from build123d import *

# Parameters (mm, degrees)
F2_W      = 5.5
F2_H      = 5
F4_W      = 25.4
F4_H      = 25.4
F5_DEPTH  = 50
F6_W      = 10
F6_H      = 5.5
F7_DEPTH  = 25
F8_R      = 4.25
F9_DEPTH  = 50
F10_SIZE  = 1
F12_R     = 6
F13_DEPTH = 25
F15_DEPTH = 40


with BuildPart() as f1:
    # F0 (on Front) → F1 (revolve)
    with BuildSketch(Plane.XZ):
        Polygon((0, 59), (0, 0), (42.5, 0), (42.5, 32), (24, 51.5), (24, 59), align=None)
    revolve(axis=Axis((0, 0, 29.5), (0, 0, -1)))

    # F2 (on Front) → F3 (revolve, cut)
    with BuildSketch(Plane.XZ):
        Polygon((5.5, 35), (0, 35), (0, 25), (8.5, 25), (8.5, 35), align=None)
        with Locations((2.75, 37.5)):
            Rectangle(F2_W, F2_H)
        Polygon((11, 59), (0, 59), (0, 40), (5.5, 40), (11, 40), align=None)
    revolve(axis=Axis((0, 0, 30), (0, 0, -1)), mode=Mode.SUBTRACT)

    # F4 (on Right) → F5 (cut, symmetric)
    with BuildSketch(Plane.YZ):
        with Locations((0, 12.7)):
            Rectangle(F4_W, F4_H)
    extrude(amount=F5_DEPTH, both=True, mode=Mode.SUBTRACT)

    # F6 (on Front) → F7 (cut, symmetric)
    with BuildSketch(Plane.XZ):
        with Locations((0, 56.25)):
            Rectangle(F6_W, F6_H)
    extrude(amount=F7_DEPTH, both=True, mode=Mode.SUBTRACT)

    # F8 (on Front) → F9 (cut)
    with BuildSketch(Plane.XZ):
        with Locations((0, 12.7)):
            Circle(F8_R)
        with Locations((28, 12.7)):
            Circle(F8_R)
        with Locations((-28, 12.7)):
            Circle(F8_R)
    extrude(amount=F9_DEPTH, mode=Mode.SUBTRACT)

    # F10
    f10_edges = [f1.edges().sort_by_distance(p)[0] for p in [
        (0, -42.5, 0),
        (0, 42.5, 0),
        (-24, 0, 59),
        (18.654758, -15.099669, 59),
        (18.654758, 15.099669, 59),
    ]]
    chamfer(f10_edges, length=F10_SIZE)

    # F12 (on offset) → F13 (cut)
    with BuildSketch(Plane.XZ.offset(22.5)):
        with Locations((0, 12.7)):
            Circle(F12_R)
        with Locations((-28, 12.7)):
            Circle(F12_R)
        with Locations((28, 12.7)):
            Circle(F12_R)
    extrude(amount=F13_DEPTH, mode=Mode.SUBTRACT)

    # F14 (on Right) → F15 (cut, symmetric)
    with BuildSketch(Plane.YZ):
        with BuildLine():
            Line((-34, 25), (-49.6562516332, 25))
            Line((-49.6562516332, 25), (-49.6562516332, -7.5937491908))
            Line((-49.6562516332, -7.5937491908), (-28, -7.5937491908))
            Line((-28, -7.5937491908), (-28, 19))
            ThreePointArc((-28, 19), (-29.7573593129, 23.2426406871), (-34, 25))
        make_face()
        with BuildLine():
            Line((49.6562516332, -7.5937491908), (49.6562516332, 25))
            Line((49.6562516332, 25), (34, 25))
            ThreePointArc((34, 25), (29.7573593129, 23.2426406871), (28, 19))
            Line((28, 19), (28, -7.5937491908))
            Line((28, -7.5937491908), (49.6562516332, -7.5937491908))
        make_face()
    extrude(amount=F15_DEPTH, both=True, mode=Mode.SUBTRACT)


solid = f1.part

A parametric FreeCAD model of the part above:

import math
import FreeCAD as App
import Part
import Sketcher
from FreeCAD import Vector
Q = App.Units.Quantity


def edges_at(feature, points):
    """Names of the edges that pass closest to the given points."""
    edges = feature.Shape.Edges
    near = lambda p: min(range(len(edges)), key=lambda i: edges[i].distToShape(Part.Vertex(*p))[0])
    return sorted({f"Edge{near(p) + 1}" for p in points})

doc = App.newDocument("Part")
body = doc.addObject("PartDesign::Body", "Body")

sketch1 = body.newObject("Sketcher::SketchObject", "Sketch")
sketch1.AttachmentSupport = (doc.getObject("XZ_Plane"), [""])
sketch1.MapMode = "FlatFace"
sketch1.addGeometry([
    Part.LineSegment(Vector(0, 59, 0), Vector(0, 0, 0)),
    Part.LineSegment(Vector(0, 0, 0), Vector(42, 0, 0)),
    Part.LineSegment(Vector(42, 0, 0), Vector(42, 32, 0)),
    Part.LineSegment(Vector(42, 32, 0), Vector(24, 52, 0)),
    Part.LineSegment(Vector(24, 52, 0), Vector(24, 59, 0)),
    Part.LineSegment(Vector(24, 59, 0), Vector(0, 59, 0)),
], False)
sketch1.addConstraint([
    Sketcher.Constraint("Coincident", 0, 2, 1, 1),
    Sketcher.Constraint("Coincident", 1, 2, 2, 1),
    Sketcher.Constraint("Coincident", 2, 2, 3, 1),
    Sketcher.Constraint("Coincident", 3, 2, 4, 1),
    Sketcher.Constraint("Coincident", 4, 2, 5, 1),
    Sketcher.Constraint("Coincident", 5, 2, 0, 1),
    Sketcher.Constraint("Vertical", 0),
    Sketcher.Constraint("Horizontal", 1),
    Sketcher.Constraint("Vertical", 2),
    Sketcher.Constraint("Vertical", 4),
    Sketcher.Constraint("Horizontal", 5),
    Sketcher.Constraint("Coincident", 0, 2, -1, 1),
    Sketcher.Constraint("DistanceX", 5, 2, 5, 1, Q("24 mm")),
    Sketcher.Constraint("DistanceY", 0, 2, 0, 1, Q("59 mm")),
    Sketcher.Constraint("DistanceY", 2, 1, 2, 2, Q("32 mm")),
    Sketcher.Constraint("DistanceX", 1, 1, 1, 2, Q("42.5 mm")),
    Sketcher.Constraint("DistanceY", 4, 1, 4, 2, Q("7.5 mm")),
])
revolution = body.newObject("PartDesign::Revolution", "Revolution")
revolution.Profile = sketch1
revolution.ReferenceAxis = (sketch1, ["V_Axis"])
revolution.Angle = 360

sketch2 = body.newObject("Sketcher::SketchObject", "Sketch001")
sketch2.AttachmentSupport = (doc.getObject("XZ_Plane"), [""])
sketch2.MapMode = "FlatFace"
sketch2.addGeometry([
    Part.LineSegment(Vector(0, 25, 0), Vector(8.5, 25, 0)),
    Part.LineSegment(Vector(8.5, 25, 0), Vector(8.5, 35, 0)),
    Part.LineSegment(Vector(8.5, 35, 0), Vector(5.5, 35, 0)),
    Part.LineSegment(Vector(5.5, 35, 0), Vector(5.5, 40, 0)),
    Part.LineSegment(Vector(5.5, 40, 0), Vector(11, 40, 0)),
    Part.LineSegment(Vector(11, 40, 0), Vector(11, 59, 0)),
    Part.LineSegment(Vector(11, 59, 0), Vector(0, 59, 0)),
    Part.LineSegment(Vector(0, 59, 0), Vector(0, 25, 0)),
], False)
sketch2.addConstraint([
    Sketcher.Constraint("Coincident", 0, 2, 1, 1),
    Sketcher.Constraint("Coincident", 1, 2, 2, 1),
    Sketcher.Constraint("Coincident", 2, 2, 3, 1),
    Sketcher.Constraint("Coincident", 3, 2, 4, 1),
    Sketcher.Constraint("Coincident", 4, 2, 5, 1),
    Sketcher.Constraint("Coincident", 5, 2, 6, 1),
    Sketcher.Constraint("Coincident", 6, 2, 7, 1),
    Sketcher.Constraint("Coincident", 7, 2, 0, 1),
    Sketcher.Constraint("Horizontal", 0),
    Sketcher.Constraint("Vertical", 1),
    Sketcher.Constraint("Horizontal", 2),
    Sketcher.Constraint("Vertical", 3),
    Sketcher.Constraint("Horizontal", 4),
    Sketcher.Constraint("Vertical", 5),
    Sketcher.Constraint("Horizontal", 6),
    Sketcher.Constraint("Vertical", 7),
    Sketcher.Constraint("PointOnObject", 6, 2, -2),
    Sketcher.Constraint("DistanceX", 2, 2, 2, 1, Q("3 mm")),
    Sketcher.Constraint("DistanceX", 6, 2, 6, 1, Q("11 mm")),
    Sketcher.Constraint("DistanceY", 1, 1, 1, 2, Q("10 mm")),
    Sketcher.Constraint("DistanceY", 3, 1, 3, 2, Q("5 mm")),
    Sketcher.Constraint("DistanceY", 5, 1, 5, 2, Q("19 mm")),
    Sketcher.Constraint("DistanceX", 0, 1, 0, 2, Q("8.5 mm")),
    Sketcher.Constraint("DistanceY", -1, 1, 0, 2, Q("25 mm")),
])
groove = body.newObject("PartDesign::Groove", "Groove")
groove.Profile = sketch2
groove.ReferenceAxis = (sketch2, ["V_Axis"])
groove.Angle = 360

sketch3 = body.newObject("Sketcher::SketchObject", "Sketch002")
sketch3.AttachmentSupport = (doc.getObject("YZ_Plane"), [""])
sketch3.MapMode = "FlatFace"
sketch3.addGeometry([
    Part.LineSegment(Vector(-13, 25, 0), Vector(-13, 0, 0)),
    Part.LineSegment(Vector(-13, 0, 0), Vector(13, 0, 0)),
    Part.LineSegment(Vector(13, 0, 0), Vector(13, 25, 0)),
    Part.LineSegment(Vector(13, 25, 0), Vector(-13, 25, 0)),
], False)
sketch3.addConstraint([
    Sketcher.Constraint("Coincident", 0, 2, 1, 1),
    Sketcher.Constraint("Coincident", 1, 2, 2, 1),
    Sketcher.Constraint("Coincident", 2, 2, 3, 1),
    Sketcher.Constraint("Coincident", 3, 2, 0, 1),
    Sketcher.Constraint("Vertical", 0),
    Sketcher.Constraint("Horizontal", 1),
    Sketcher.Constraint("Vertical", 2),
    Sketcher.Constraint("Horizontal", 3),
    Sketcher.Constraint("Symmetric", 0, 2, 1, 2, -1, 1),
    Sketcher.Constraint("Equal", 3, 0),
    Sketcher.Constraint("DistanceX", 1, 1, 1, 2, Q("25.4 mm")),
])
pocket1 = body.newObject("PartDesign::Pocket", "Pocket")
pocket1.Profile = sketch3
pocket1.Length = 100
pocket1.Midplane = True

sketch4 = body.newObject("Sketcher::SketchObject", "Sketch003")
sketch4.AttachmentSupport = (doc.getObject("XZ_Plane"), [""])
sketch4.MapMode = "FlatFace"
sketch4.addGeometry([
    Part.LineSegment(Vector(-5, 59, 0), Vector(-5, 54, 0)),
    Part.LineSegment(Vector(-5, 54, 0), Vector(5, 54, 0)),
    Part.LineSegment(Vector(5, 54, 0), Vector(5, 59, 0)),
    Part.LineSegment(Vector(5, 59, 0), Vector(-5, 59, 0)),
], False)
sketch4.addConstraint([
    Sketcher.Constraint("Coincident", 0, 2, 1, 1),
    Sketcher.Constraint("Coincident", 1, 2, 2, 1),
    Sketcher.Constraint("Coincident", 2, 2, 3, 1),
    Sketcher.Constraint("Coincident", 3, 2, 0, 1),
    Sketcher.Constraint("Vertical", 0),
    Sketcher.Constraint("Horizontal", 1),
    Sketcher.Constraint("Vertical", 2),
    Sketcher.Constraint("Horizontal", 3),
    Sketcher.Constraint("DistanceX", 1, 1, 1, 2, Q("10 mm")),
    Sketcher.Constraint("DistanceY", 0, 2, 0, 1, Q("5.5 mm")),
    Sketcher.Constraint("DistanceX", 0, 2, -1, 1, Q("5 mm")),
    Sketcher.Constraint("DistanceY", -1, 1, 2, 2, Q("59 mm")),
])
pocket2 = body.newObject("PartDesign::Pocket", "Pocket001")
pocket2.Profile = sketch4
pocket2.Length = 50
pocket2.Midplane = True

sketch5 = body.newObject("Sketcher::SketchObject", "Sketch004")
sketch5.AttachmentSupport = (doc.getObject("XZ_Plane"), [""])
sketch5.MapMode = "FlatFace"
sketch5.addGeometry([
    Part.Circle(Vector(0, 12.7, 0), Vector(0, 0, 1), 4.2),
    Part.Circle(Vector(28, 12.7, 0), Vector(0, 0, 1), 4.2),
    Part.Circle(Vector(-28, 12.7, 0), Vector(0, 0, 1), 4.2),
], False)
sketch5.addConstraint([
    Sketcher.Constraint("Equal", 0, 1),
    Sketcher.Constraint("Equal", 1, 2),
    Sketcher.Constraint("Symmetric", 1, 3, 2, 3, -2),
    Sketcher.Constraint("PointOnObject", 0, 3, -2),
    Sketcher.Constraint("Horizontal", 0, 3, 1, 3),
    Sketcher.Constraint("Diameter", 0, Q("8.5 mm")),
    Sketcher.Constraint("DistanceX", -1, 1, 1, 3, Q("28 mm")),
    Sketcher.Constraint("DistanceY", -1, 1, 0, 3, Q("12.7 mm")),
])
pocket3 = body.newObject("PartDesign::Pocket", "Pocket002")
pocket3.Profile = sketch5
pocket3.Length = 50
pocket3.Reversed = True
doc.recompute()

chamfer = body.newObject("PartDesign::Chamfer", "Chamfer")
chamfer.Base = (pocket3, edges_at(pocket3, [
    (0, -42.5, 0),
    (0, 42.5, 0),
    (-24, 0, 59),
    (18.655, -15.1, 59),
    (18.655, 15.1, 59),
]))
chamfer.Size = 1

sketch6 = body.newObject("Sketcher::SketchObject", "Sketch005")
sketch6.AttachmentSupport = (doc.getObject("XZ_Plane"), [""])
sketch6.MapMode = "FlatFace"
sketch6.AttachmentOffset = App.Placement(Vector(0, 0, 22.5), App.Rotation())
sketch6.addGeometry([
    Part.Circle(Vector(0, 13, 0), Vector(0, 0, 1), 6),
    Part.Circle(Vector(-28, 13, 0), Vector(0, 0, 1), 6),
    Part.Circle(Vector(28, 13, 0), Vector(0, 0, 1), 6),
], False)
sketch6.addConstraint([
    Sketcher.Constraint("Equal", 0, 1),
    Sketcher.Constraint("Equal", 1, 2),
    Sketcher.Constraint("Symmetric", 1, 3, 2, 3, -2),
    Sketcher.Constraint("PointOnObject", 0, 3, -2),
    Sketcher.Constraint("Horizontal", 0, 3, 1, 3),
    Sketcher.Constraint("Diameter", 0, Q("12 mm")),
    Sketcher.Constraint("DistanceX", 1, 3, -1, 1, Q("28 mm")),
    Sketcher.Constraint("DistanceY", -1, 1, 0, 3, Q("12.7 mm")),
])
pocket4 = body.newObject("PartDesign::Pocket", "Pocket003")
pocket4.Profile = sketch6
pocket4.Length = 25
pocket4.Reversed = True

sketch7 = body.newObject("Sketcher::SketchObject", "Sketch006")
sketch7.AttachmentSupport = (doc.getObject("YZ_Plane"), [""])
sketch7.MapMode = "FlatFace"
sketch7.addGeometry([
    Part.LineSegment(Vector(-34, 25, 0), Vector(-50, 25, 0)),
    Part.LineSegment(Vector(-50, 25, 0), Vector(-50, -8, 0)),
    Part.LineSegment(Vector(-50, -8, 0), Vector(-28, -8, 0)),
    Part.LineSegment(Vector(-28, -8, 0), Vector(-28, 19, 0)),
    Part.ArcOfCircle(Part.Circle(Vector(-34, 19, 0), Vector(0, 0, 1), 6), math.radians(0), math.radians(90)),
    Part.LineSegment(Vector(50, -8, 0), Vector(50, 25, 0)),
    Part.LineSegment(Vector(50, 25, 0), Vector(34, 25, 0)),
    Part.ArcOfCircle(Part.Circle(Vector(34, 19, 0), Vector(0, 0, 1), 6), math.radians(90), math.radians(180)),
    Part.LineSegment(Vector(28, 19, 0), Vector(28, -8, 0)),
    Part.LineSegment(Vector(28, -8, 0), Vector(50, -8, 0)),
], False)
sketch7.addConstraint([
    Sketcher.Constraint("Coincident", 0, 2, 1, 1),
    Sketcher.Constraint("Coincident", 1, 2, 2, 1),
    Sketcher.Constraint("Coincident", 2, 2, 3, 1),
    Sketcher.Constraint("Tangent", 3, 2, 4, 1),
    Sketcher.Constraint("Tangent", 4, 2, 0, 1),
    Sketcher.Constraint("Coincident", 5, 2, 6, 1),
    Sketcher.Constraint("Tangent", 6, 2, 7, 1),
    Sketcher.Constraint("Tangent", 7, 2, 8, 1),
    Sketcher.Constraint("Coincident", 8, 2, 9, 1),
    Sketcher.Constraint("Coincident", 9, 2, 5, 1),
    Sketcher.Constraint("Horizontal", 0),
    Sketcher.Constraint("Vertical", 1),
    Sketcher.Constraint("Horizontal", 2),
    Sketcher.Constraint("Vertical", 3),
    Sketcher.Constraint("Vertical", 5),
    Sketcher.Constraint("Horizontal", 6),
    Sketcher.Constraint("Vertical", 8),
    Sketcher.Constraint("Horizontal", 9),
    Sketcher.Constraint("Equal", 4, 7),
    Sketcher.Constraint("Symmetric", 4, 3, 7, 3, -2),
    Sketcher.Constraint("Symmetric", 1, 2, 9, 2, -2),
    Sketcher.Constraint("Radius", 4, Q("6 mm")),
    Sketcher.Constraint("DistanceX", 4, 3, -1, 1, Q("34 mm")),
    Sketcher.Constraint("DistanceY", -1, 1, 4, 3, Q("19 mm")),
    Sketcher.Constraint("DistanceX", 0, 2, 0, 1, Q("15.656252 mm")),
    Sketcher.Constraint("DistanceY", 1, 2, 1, 1, Q("32.593749 mm")),
])
pocket5 = body.newObject("PartDesign::Pocket", "Pocket004")
pocket5.Profile = sketch7
pocket5.Length = 80
pocket5.Midplane = True

doc.recompute()
